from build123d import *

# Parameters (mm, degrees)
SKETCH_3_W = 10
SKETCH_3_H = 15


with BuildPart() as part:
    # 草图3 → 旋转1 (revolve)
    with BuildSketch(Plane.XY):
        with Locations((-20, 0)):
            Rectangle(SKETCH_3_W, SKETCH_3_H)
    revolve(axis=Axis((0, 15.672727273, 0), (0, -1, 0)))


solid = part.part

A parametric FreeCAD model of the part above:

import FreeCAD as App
import Part
import Sketcher
Q = App.Units.Quantity

doc = App.newDocument("Part")
body = doc.addObject("PartDesign::Body", "Body")

# Sketch on XY plane
sketch1 = body.newObject("Sketcher::SketchObject", "Sketch")
sketch1.AttachmentSupport = (doc.getObject("XY_Plane"), [""])
sketch1.MapMode = "FlatFace"
sketch1.addGeometry(Part.LineSegment(App.Vector(-25, 8, 0), App.Vector(-25, -8, 0)), False)
sketch1.addGeometry(Part.LineSegment(App.Vector(-25, -8, 0), App.Vector(-15, -8, 0)), False)
sketch1.addGeometry(Part.LineSegment(App.Vector(-15, -8, 0), App.Vector(-15, 8, 0)), False)
sketch1.addGeometry(Part.LineSegment(App.Vector(-15, 8, 0), App.Vector(-25, 8, 0)), False)
sketch1.addConstraint(Sketcher.Constraint("Coincident", 0, 2, 1, 1))
sketch1.addConstraint(Sketcher.Constraint("Coincident", 1, 2, 2, 1))
sketch1.addConstraint(Sketcher.Constraint("Coincident", 2, 2, 3, 1))
sketch1.addConstraint(Sketcher.Constraint("Coincident", 3, 2, 0, 1))
sketch1.addConstraint(Sketcher.Constraint("Vertical", 0))
sketch1.addConstraint(Sketcher.Constraint("Horizontal", 1))
sketch1.addConstraint(Sketcher.Constraint("Vertical", 2))
sketch1.addConstraint(Sketcher.Constraint("Horizontal", 3))
sketch1.addConstraint(Sketcher.Constraint("DistanceX", 1, 1, 1, 2, Q("10 mm")))
sketch1.addConstraint(Sketcher.Constraint("DistanceY", 0, 2, 0, 1, Q("15 mm")))
sketch1.addConstraint(Sketcher.Constraint("DistanceX", 0, 2, -1, 1, Q("25 mm")))
sketch1.addConstraint(Sketcher.Constraint("DistanceY", 0, 2, -1, 1, Q("7.5 mm")))
revolution = body.newObject("PartDesign::Revolution", "Revolution")
revolution.Profile = sketch1
revolution.ReferenceAxis = (sketch1, ["V_Axis"])
revolution.Angle = 360

doc.recompute()
